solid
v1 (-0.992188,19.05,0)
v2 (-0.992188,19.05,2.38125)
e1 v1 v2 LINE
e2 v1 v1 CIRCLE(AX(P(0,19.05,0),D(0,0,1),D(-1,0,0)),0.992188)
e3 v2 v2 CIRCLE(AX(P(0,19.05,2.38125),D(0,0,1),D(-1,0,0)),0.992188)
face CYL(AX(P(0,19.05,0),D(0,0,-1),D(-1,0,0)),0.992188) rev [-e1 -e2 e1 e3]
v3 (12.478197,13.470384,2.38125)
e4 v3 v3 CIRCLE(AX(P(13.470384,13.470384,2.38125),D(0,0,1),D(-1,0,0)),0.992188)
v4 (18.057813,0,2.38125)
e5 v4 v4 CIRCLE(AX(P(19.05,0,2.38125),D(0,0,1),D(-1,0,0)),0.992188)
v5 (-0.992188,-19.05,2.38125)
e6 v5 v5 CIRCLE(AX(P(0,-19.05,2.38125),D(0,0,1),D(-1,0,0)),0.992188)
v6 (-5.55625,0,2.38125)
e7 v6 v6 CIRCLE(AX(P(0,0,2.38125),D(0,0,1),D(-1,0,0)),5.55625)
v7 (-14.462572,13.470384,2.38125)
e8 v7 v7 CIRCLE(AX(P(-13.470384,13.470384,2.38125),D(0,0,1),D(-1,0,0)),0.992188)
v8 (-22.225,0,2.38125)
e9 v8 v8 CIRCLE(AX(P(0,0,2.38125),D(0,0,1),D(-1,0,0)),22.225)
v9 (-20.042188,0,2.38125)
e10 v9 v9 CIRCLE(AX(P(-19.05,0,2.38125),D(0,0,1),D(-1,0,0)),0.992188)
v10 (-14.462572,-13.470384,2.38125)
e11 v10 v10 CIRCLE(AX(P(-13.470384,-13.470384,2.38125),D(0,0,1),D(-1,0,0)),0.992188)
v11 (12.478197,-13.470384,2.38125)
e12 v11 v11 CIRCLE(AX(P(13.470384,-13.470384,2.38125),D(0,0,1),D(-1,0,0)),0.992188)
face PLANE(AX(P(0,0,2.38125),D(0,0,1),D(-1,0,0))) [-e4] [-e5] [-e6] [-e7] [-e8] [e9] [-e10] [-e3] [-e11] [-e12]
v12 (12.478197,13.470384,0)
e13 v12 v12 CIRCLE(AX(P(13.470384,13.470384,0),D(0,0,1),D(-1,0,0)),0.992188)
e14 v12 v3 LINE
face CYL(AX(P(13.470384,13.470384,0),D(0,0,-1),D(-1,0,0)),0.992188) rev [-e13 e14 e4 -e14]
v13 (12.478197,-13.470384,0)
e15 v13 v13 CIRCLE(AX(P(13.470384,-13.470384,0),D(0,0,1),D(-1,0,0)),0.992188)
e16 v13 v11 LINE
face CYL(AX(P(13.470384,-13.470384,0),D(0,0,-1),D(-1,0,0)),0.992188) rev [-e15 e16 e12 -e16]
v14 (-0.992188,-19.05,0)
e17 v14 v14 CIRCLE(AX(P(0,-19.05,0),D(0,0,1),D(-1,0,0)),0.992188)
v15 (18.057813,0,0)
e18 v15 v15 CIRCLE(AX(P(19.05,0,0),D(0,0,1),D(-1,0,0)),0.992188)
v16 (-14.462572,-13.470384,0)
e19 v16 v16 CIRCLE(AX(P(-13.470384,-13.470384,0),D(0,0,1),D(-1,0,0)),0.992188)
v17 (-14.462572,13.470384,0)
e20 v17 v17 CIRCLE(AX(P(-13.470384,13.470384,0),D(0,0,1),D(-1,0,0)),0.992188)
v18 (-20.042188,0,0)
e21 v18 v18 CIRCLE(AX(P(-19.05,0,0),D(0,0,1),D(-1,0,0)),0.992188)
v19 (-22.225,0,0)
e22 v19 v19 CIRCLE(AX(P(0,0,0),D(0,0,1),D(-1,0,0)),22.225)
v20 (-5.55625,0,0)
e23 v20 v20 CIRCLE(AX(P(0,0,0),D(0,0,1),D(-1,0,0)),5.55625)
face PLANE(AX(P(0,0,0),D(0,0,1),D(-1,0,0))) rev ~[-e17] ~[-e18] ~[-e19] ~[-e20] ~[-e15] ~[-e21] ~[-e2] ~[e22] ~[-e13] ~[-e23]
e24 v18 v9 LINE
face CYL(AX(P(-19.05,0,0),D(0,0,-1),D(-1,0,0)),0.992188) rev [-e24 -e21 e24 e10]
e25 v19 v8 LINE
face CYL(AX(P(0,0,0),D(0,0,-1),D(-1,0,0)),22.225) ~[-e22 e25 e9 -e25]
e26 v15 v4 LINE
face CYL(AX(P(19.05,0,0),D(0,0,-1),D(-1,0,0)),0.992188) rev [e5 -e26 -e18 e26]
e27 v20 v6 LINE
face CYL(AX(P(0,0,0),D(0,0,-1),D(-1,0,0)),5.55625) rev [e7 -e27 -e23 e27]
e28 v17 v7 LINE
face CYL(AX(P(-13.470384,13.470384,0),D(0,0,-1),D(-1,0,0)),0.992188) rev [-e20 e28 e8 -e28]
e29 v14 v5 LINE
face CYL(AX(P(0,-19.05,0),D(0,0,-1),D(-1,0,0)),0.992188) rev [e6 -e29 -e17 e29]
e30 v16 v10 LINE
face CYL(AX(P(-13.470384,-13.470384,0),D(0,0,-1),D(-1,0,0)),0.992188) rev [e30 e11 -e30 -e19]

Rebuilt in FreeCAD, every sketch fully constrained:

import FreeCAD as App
import Part
import Sketcher

V = App.Vector
Q = App.Units.Quantity

doc = App.newDocument("Part")
body = doc.addObject("PartDesign::Body", "Body")

# Sketch on XY plane
sketch1 = doc.addObject("Sketcher::SketchObject", "Sketch")
body.addObject(sketch1)
sketch1.AttachmentSupport = (doc.XY_Plane, [""])
sketch1.MapMode = "FlatFace"
sketch1.addGeometry(Part.Circle(V(0, 0, 0), V(0, 0, 1), 22.2), False)
sketch1.addGeometry(Part.Circle(V(13.5, 13.5, 0), V(0, 0, 1), 1), False)
sketch1.addGeometry(Part.Circle(V(19.1, 0, 0), V(0, 0, 1), 1), False)
sketch1.addGeometry(Part.Circle(V(0, 19.1, 0), V(0, 0, 1), 1), False)
sketch1.addGeometry(Part.Circle(V(-13.5, 13.5, 0), V(0, 0, 1), 1), False)
sketch1.addGeometry(Part.Circle(V(13.5, -13.5, 0), V(0, 0, 1), 1), False)
sketch1.addGeometry(Part.Circle(V(0, 0, 0), V(0, 0, 1), 5.6), False)
sketch1.addGeometry(Part.Circle(V(-19.1, 0, 0), V(0, 0, 1), 1), False)
sketch1.addGeometry(Part.Circle(V(0, -19.1, 0), V(0, 0, 1), 1), False)
sketch1.addGeometry(Part.Circle(V(-13.5, -13.5, 0), V(0, 0, 1), 1), False)
sketch1.addConstraint(Sketcher.Constraint("Coincident", 0, 3, -1, 1))
sketch1.addConstraint(Sketcher.Constraint("Coincident", 6, 3, -1, 1))
sketch1.addConstraint(Sketcher.Constraint("Equal", 1, 2))
sketch1.addConstraint(Sketcher.Constraint("Equal", 2, 3))
sketch1.addConstraint(Sketcher.Constraint("Equal", 3, 4))
sketch1.addConstraint(Sketcher.Constraint("Equal", 4, 5))
sketch1.addConstraint(Sketcher.Constraint("Equal", 5, 7))
sketch1.addConstraint(Sketcher.Constraint("Equal", 7, 8))
sketch1.addConstraint(Sketcher.Constraint("Equal", 8, 9))
sketch1.addConstraint(Sketcher.Constraint("Symmetric", 4, 3, 5, 3, -1, 1))
sketch1.addConstraint(Sketcher.Constraint("Symmetric", 2, 3, 7, 3, -1, 1))
sketch1.addConstraint(Sketcher.Constraint("Symmetric", 3, 3, 8, 3, -1, 1))
sketch1.addConstraint(Sketcher.Constraint("Symmetric", 1, 3, 9, 3, -1, 1))
sketch1.addConstraint(Sketcher.Constraint("Symmetric", 1, 3, 4, 3, -2))
sketch1.addConstraint(Sketcher.Constraint("PointOnObject", 2, 3, -1))
sketch1.addConstraint(Sketcher.Constraint("PointOnObject", 3, 3, -2))
sketch1.addConstraint(Sketcher.Constraint("Diameter", 0, Q("1.75 in")))
sketch1.addConstraint(Sketcher.Constraint("Diameter", 1, Q("0.078125 in")))
sketch1.addConstraint(Sketcher.Constraint("Diameter", 6, Q("0.4375 in")))
sketch1.addConstraint(Sketcher.Constraint("DistanceX", -1, 1, 2, 3, Q("0.75 in")))
sketch1.addConstraint(Sketcher.Constraint("DistanceY", -1, 1, 3, 3, Q("0.75 in")))
sketch1.addConstraint(Sketcher.Constraint("DistanceX", 4, 3, 1, 3, Q("26.940768 mm")))
sketch1.addConstraint(Sketcher.Constraint("DistanceY", 5, 3, 1, 3, Q("26.940768 mm")))
pad1 = doc.addObject("PartDesign::Pad", "Pad")
body.addObject(pad1)
pad1.Profile = sketch1
pad1.Length = Q("0.09375 in")

doc.recompute()
